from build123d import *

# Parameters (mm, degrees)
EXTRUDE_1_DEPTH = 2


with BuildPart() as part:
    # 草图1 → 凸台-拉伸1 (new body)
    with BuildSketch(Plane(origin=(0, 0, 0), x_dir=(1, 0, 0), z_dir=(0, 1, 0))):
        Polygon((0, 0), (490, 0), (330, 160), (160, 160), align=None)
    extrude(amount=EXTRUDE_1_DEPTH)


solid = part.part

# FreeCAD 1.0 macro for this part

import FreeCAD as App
import Part
import Sketcher
from FreeCAD import Vector
Q = App.Units.Quantity


def add_polygon(sketch, points):
    """Adds a closed chain of lines whose ends are joined by coincident constraints."""
    first, n = sketch.GeometryCount, len(points)
    for a, b in zip(points, points[1:] + points[:1]):
        sketch.addGeometry(Part.LineSegment(App.Vector(*a, 0), App.Vector(*b, 0)), False)
    for i in range(n):
        sketch.addConstraint(Sketcher.Constraint("Coincident", first + i, 2, first + (i + 1) % n, 1))

doc = App.newDocument("Part")
body = doc.addObject("PartDesign::Body", "Body")

# Sketch on XZ plane
sketch1 = body.newObject("Sketcher::SketchObject", "Sketch")
sketch1.AttachmentSupport = (doc.getObject("XZ_Plane"), [""])
sketch1.MapMode = "FlatFace"
add_polygon(sketch1, [(0, 0), (490, 0), (330, -160), (160, -160)])  # lines 0-3
sketch1.addConstraint(Sketcher.Constraint("Horizontal", 0))
sketch1.addConstraint(Sketcher.Constraint("Horizontal", 2))
sketch1.addConstraint(Sketcher.Constraint("Coincident", 3, 2, -1, 1))
sketch1.addConstraint(Sketcher.Constraint("Perpendicular", 1, 3))
sketch1.addConstraint(Sketcher.Constraint("Equal", 1, 3))
sketch1.addConstraint(Sketcher.Constraint("DistanceX", 0, 1, 0, 2, Q("490 mm")))
sketch1.addConstraint(Sketcher.Constraint("DistanceX", 2, 2, 2, 1, Q("170 mm")))
pad1 = body.newObject("PartDesign::Pad", "Pad")
pad1.Profile = sketch1
pad1.Length = 2
pad1.Reversed = True

doc.recompute()
